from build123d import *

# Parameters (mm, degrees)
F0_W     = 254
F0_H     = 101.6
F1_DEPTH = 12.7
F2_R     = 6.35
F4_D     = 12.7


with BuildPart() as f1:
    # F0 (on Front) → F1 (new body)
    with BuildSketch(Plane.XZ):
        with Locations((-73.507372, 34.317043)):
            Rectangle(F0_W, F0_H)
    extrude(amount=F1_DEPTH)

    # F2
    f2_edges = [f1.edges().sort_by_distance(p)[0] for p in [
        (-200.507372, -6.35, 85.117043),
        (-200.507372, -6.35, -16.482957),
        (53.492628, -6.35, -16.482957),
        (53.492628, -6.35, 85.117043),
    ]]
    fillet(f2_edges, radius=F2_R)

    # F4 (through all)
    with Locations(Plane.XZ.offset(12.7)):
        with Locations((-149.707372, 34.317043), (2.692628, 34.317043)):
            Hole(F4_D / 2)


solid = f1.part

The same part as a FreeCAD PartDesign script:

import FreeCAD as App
import Part
import Sketcher
from FreeCAD import Vector
Q = App.Units.Quantity


def edges_at(feature, points):
    """Names of the edges that pass closest to the given points."""
    edges = feature.Shape.Edges
    near = lambda p: min(range(len(edges)), key=lambda i: edges[i].distToShape(Part.Vertex(*p))[0])
    return sorted({f"Edge{near(p) + 1}" for p in points})


def add_polygon(sketch, points):
    """Adds a closed chain of lines whose ends are joined by coincident constraints."""
    first, n = sketch.GeometryCount, len(points)
    for a, b in zip(points, points[1:] + points[:1]):
        sketch.addGeometry(Part.LineSegment(App.Vector(*a, 0), App.Vector(*b, 0)), False)
    for i in range(n):
        sketch.addConstraint(Sketcher.Constraint("Coincident", first + i, 2, first + (i + 1) % n, 1))

doc = App.newDocument("Part")
body = doc.addObject("PartDesign::Body", "Body")

# Sketch on XZ plane
sketch1 = doc.addObject("Sketcher::SketchObject", "Sketch")
body.addObject(sketch1)
sketch1.AttachmentSupport = (doc.XZ_Plane, [""])
sketch1.MapMode = "FlatFace"
add_polygon(sketch1, [(-201, 85), (-201, -16), (53, -16), (53, 85)])  # lines 0-3
sketch1.addConstraint(Sketcher.Constraint("Vertical", 0))
sketch1.addConstraint(Sketcher.Constraint("Horizontal", 1))
sketch1.addConstraint(Sketcher.Constraint("Vertical", 2))
sketch1.addConstraint(Sketcher.Constraint("Horizontal", 3))
sketch1.addConstraint(Sketcher.Constraint("DistanceX", 1, 1, 1, 2, Q("10 in")))
sketch1.addConstraint(Sketcher.Constraint("DistanceY", 0, 2, 0, 1, Q("4 in")))
sketch1.addConstraint(Sketcher.Constraint("DistanceX", 0, 2, -1, 1, 200.507372))
sketch1.addConstraint(Sketcher.Constraint("DistanceY", 0, 2, -1, 1, 16.482957))
pad1 = doc.addObject("PartDesign::Pad", "Pad")
body.addObject(pad1)
pad1.Profile = sketch1
pad1.Length = Q("0.5 in")
doc.recompute()

fillet = doc.addObject("PartDesign::Fillet", "Fillet")
body.addObject(fillet)
fillet.Base = (pad1, edges_at(pad1, [
    (-200.507, -6.35, 85.117),
    (-200.507, -6.35, -16.483),
    (53.493, -6.35, -16.483),
    (53.493, -6.35, 85.117),
]))
fillet.Radius = Q("0.25 in")

# Sketch on XZ plane
sketch2 = doc.addObject("Sketcher::SketchObject", "Sketch001")
body.addObject(sketch2)
sketch2.AttachmentSupport = (doc.XZ_Plane, [""])
sketch2.MapMode = "FlatFace"
sketch2.AttachmentOffset = App.Placement(Vector(0, 0, 0.5 * 25.4), App.Rotation())
sketch2.addGeometry(Part.Circle(Vector(-150, 34, 0), Vector(0, 0, 1), 6), False)
sketch2.addGeometry(Part.Circle(Vector(3, 34, 0), Vector(0, 0, 1), 6), False)
sketch2.addConstraint(Sketcher.Constraint("Equal", 0, 1))
sketch2.addConstraint(Sketcher.Constraint("Horizontal", 0, 3, 1, 3))
sketch2.addConstraint(Sketcher.Constraint("Diameter", 0, Q("0.5 in")))
sketch2.addConstraint(Sketcher.Constraint("DistanceX", 0, 3, 1, 3, Q("6 in")))
sketch2.addConstraint(Sketcher.Constraint("DistanceX", 0, 3, -1, 1, 149.707372))
sketch2.addConstraint(Sketcher.Constraint("DistanceY", -1, 1, 0, 3, 34.317043))
doc.recompute()
hole = doc.addObject("PartDesign::Hole", "Hole")
body.addObject(hole)
hole.Profile = sketch2
hole.ThreadType = "None"
hole.Diameter = Q("0.5 in")
hole.DepthType = "ThroughAll"

doc.recompute()
